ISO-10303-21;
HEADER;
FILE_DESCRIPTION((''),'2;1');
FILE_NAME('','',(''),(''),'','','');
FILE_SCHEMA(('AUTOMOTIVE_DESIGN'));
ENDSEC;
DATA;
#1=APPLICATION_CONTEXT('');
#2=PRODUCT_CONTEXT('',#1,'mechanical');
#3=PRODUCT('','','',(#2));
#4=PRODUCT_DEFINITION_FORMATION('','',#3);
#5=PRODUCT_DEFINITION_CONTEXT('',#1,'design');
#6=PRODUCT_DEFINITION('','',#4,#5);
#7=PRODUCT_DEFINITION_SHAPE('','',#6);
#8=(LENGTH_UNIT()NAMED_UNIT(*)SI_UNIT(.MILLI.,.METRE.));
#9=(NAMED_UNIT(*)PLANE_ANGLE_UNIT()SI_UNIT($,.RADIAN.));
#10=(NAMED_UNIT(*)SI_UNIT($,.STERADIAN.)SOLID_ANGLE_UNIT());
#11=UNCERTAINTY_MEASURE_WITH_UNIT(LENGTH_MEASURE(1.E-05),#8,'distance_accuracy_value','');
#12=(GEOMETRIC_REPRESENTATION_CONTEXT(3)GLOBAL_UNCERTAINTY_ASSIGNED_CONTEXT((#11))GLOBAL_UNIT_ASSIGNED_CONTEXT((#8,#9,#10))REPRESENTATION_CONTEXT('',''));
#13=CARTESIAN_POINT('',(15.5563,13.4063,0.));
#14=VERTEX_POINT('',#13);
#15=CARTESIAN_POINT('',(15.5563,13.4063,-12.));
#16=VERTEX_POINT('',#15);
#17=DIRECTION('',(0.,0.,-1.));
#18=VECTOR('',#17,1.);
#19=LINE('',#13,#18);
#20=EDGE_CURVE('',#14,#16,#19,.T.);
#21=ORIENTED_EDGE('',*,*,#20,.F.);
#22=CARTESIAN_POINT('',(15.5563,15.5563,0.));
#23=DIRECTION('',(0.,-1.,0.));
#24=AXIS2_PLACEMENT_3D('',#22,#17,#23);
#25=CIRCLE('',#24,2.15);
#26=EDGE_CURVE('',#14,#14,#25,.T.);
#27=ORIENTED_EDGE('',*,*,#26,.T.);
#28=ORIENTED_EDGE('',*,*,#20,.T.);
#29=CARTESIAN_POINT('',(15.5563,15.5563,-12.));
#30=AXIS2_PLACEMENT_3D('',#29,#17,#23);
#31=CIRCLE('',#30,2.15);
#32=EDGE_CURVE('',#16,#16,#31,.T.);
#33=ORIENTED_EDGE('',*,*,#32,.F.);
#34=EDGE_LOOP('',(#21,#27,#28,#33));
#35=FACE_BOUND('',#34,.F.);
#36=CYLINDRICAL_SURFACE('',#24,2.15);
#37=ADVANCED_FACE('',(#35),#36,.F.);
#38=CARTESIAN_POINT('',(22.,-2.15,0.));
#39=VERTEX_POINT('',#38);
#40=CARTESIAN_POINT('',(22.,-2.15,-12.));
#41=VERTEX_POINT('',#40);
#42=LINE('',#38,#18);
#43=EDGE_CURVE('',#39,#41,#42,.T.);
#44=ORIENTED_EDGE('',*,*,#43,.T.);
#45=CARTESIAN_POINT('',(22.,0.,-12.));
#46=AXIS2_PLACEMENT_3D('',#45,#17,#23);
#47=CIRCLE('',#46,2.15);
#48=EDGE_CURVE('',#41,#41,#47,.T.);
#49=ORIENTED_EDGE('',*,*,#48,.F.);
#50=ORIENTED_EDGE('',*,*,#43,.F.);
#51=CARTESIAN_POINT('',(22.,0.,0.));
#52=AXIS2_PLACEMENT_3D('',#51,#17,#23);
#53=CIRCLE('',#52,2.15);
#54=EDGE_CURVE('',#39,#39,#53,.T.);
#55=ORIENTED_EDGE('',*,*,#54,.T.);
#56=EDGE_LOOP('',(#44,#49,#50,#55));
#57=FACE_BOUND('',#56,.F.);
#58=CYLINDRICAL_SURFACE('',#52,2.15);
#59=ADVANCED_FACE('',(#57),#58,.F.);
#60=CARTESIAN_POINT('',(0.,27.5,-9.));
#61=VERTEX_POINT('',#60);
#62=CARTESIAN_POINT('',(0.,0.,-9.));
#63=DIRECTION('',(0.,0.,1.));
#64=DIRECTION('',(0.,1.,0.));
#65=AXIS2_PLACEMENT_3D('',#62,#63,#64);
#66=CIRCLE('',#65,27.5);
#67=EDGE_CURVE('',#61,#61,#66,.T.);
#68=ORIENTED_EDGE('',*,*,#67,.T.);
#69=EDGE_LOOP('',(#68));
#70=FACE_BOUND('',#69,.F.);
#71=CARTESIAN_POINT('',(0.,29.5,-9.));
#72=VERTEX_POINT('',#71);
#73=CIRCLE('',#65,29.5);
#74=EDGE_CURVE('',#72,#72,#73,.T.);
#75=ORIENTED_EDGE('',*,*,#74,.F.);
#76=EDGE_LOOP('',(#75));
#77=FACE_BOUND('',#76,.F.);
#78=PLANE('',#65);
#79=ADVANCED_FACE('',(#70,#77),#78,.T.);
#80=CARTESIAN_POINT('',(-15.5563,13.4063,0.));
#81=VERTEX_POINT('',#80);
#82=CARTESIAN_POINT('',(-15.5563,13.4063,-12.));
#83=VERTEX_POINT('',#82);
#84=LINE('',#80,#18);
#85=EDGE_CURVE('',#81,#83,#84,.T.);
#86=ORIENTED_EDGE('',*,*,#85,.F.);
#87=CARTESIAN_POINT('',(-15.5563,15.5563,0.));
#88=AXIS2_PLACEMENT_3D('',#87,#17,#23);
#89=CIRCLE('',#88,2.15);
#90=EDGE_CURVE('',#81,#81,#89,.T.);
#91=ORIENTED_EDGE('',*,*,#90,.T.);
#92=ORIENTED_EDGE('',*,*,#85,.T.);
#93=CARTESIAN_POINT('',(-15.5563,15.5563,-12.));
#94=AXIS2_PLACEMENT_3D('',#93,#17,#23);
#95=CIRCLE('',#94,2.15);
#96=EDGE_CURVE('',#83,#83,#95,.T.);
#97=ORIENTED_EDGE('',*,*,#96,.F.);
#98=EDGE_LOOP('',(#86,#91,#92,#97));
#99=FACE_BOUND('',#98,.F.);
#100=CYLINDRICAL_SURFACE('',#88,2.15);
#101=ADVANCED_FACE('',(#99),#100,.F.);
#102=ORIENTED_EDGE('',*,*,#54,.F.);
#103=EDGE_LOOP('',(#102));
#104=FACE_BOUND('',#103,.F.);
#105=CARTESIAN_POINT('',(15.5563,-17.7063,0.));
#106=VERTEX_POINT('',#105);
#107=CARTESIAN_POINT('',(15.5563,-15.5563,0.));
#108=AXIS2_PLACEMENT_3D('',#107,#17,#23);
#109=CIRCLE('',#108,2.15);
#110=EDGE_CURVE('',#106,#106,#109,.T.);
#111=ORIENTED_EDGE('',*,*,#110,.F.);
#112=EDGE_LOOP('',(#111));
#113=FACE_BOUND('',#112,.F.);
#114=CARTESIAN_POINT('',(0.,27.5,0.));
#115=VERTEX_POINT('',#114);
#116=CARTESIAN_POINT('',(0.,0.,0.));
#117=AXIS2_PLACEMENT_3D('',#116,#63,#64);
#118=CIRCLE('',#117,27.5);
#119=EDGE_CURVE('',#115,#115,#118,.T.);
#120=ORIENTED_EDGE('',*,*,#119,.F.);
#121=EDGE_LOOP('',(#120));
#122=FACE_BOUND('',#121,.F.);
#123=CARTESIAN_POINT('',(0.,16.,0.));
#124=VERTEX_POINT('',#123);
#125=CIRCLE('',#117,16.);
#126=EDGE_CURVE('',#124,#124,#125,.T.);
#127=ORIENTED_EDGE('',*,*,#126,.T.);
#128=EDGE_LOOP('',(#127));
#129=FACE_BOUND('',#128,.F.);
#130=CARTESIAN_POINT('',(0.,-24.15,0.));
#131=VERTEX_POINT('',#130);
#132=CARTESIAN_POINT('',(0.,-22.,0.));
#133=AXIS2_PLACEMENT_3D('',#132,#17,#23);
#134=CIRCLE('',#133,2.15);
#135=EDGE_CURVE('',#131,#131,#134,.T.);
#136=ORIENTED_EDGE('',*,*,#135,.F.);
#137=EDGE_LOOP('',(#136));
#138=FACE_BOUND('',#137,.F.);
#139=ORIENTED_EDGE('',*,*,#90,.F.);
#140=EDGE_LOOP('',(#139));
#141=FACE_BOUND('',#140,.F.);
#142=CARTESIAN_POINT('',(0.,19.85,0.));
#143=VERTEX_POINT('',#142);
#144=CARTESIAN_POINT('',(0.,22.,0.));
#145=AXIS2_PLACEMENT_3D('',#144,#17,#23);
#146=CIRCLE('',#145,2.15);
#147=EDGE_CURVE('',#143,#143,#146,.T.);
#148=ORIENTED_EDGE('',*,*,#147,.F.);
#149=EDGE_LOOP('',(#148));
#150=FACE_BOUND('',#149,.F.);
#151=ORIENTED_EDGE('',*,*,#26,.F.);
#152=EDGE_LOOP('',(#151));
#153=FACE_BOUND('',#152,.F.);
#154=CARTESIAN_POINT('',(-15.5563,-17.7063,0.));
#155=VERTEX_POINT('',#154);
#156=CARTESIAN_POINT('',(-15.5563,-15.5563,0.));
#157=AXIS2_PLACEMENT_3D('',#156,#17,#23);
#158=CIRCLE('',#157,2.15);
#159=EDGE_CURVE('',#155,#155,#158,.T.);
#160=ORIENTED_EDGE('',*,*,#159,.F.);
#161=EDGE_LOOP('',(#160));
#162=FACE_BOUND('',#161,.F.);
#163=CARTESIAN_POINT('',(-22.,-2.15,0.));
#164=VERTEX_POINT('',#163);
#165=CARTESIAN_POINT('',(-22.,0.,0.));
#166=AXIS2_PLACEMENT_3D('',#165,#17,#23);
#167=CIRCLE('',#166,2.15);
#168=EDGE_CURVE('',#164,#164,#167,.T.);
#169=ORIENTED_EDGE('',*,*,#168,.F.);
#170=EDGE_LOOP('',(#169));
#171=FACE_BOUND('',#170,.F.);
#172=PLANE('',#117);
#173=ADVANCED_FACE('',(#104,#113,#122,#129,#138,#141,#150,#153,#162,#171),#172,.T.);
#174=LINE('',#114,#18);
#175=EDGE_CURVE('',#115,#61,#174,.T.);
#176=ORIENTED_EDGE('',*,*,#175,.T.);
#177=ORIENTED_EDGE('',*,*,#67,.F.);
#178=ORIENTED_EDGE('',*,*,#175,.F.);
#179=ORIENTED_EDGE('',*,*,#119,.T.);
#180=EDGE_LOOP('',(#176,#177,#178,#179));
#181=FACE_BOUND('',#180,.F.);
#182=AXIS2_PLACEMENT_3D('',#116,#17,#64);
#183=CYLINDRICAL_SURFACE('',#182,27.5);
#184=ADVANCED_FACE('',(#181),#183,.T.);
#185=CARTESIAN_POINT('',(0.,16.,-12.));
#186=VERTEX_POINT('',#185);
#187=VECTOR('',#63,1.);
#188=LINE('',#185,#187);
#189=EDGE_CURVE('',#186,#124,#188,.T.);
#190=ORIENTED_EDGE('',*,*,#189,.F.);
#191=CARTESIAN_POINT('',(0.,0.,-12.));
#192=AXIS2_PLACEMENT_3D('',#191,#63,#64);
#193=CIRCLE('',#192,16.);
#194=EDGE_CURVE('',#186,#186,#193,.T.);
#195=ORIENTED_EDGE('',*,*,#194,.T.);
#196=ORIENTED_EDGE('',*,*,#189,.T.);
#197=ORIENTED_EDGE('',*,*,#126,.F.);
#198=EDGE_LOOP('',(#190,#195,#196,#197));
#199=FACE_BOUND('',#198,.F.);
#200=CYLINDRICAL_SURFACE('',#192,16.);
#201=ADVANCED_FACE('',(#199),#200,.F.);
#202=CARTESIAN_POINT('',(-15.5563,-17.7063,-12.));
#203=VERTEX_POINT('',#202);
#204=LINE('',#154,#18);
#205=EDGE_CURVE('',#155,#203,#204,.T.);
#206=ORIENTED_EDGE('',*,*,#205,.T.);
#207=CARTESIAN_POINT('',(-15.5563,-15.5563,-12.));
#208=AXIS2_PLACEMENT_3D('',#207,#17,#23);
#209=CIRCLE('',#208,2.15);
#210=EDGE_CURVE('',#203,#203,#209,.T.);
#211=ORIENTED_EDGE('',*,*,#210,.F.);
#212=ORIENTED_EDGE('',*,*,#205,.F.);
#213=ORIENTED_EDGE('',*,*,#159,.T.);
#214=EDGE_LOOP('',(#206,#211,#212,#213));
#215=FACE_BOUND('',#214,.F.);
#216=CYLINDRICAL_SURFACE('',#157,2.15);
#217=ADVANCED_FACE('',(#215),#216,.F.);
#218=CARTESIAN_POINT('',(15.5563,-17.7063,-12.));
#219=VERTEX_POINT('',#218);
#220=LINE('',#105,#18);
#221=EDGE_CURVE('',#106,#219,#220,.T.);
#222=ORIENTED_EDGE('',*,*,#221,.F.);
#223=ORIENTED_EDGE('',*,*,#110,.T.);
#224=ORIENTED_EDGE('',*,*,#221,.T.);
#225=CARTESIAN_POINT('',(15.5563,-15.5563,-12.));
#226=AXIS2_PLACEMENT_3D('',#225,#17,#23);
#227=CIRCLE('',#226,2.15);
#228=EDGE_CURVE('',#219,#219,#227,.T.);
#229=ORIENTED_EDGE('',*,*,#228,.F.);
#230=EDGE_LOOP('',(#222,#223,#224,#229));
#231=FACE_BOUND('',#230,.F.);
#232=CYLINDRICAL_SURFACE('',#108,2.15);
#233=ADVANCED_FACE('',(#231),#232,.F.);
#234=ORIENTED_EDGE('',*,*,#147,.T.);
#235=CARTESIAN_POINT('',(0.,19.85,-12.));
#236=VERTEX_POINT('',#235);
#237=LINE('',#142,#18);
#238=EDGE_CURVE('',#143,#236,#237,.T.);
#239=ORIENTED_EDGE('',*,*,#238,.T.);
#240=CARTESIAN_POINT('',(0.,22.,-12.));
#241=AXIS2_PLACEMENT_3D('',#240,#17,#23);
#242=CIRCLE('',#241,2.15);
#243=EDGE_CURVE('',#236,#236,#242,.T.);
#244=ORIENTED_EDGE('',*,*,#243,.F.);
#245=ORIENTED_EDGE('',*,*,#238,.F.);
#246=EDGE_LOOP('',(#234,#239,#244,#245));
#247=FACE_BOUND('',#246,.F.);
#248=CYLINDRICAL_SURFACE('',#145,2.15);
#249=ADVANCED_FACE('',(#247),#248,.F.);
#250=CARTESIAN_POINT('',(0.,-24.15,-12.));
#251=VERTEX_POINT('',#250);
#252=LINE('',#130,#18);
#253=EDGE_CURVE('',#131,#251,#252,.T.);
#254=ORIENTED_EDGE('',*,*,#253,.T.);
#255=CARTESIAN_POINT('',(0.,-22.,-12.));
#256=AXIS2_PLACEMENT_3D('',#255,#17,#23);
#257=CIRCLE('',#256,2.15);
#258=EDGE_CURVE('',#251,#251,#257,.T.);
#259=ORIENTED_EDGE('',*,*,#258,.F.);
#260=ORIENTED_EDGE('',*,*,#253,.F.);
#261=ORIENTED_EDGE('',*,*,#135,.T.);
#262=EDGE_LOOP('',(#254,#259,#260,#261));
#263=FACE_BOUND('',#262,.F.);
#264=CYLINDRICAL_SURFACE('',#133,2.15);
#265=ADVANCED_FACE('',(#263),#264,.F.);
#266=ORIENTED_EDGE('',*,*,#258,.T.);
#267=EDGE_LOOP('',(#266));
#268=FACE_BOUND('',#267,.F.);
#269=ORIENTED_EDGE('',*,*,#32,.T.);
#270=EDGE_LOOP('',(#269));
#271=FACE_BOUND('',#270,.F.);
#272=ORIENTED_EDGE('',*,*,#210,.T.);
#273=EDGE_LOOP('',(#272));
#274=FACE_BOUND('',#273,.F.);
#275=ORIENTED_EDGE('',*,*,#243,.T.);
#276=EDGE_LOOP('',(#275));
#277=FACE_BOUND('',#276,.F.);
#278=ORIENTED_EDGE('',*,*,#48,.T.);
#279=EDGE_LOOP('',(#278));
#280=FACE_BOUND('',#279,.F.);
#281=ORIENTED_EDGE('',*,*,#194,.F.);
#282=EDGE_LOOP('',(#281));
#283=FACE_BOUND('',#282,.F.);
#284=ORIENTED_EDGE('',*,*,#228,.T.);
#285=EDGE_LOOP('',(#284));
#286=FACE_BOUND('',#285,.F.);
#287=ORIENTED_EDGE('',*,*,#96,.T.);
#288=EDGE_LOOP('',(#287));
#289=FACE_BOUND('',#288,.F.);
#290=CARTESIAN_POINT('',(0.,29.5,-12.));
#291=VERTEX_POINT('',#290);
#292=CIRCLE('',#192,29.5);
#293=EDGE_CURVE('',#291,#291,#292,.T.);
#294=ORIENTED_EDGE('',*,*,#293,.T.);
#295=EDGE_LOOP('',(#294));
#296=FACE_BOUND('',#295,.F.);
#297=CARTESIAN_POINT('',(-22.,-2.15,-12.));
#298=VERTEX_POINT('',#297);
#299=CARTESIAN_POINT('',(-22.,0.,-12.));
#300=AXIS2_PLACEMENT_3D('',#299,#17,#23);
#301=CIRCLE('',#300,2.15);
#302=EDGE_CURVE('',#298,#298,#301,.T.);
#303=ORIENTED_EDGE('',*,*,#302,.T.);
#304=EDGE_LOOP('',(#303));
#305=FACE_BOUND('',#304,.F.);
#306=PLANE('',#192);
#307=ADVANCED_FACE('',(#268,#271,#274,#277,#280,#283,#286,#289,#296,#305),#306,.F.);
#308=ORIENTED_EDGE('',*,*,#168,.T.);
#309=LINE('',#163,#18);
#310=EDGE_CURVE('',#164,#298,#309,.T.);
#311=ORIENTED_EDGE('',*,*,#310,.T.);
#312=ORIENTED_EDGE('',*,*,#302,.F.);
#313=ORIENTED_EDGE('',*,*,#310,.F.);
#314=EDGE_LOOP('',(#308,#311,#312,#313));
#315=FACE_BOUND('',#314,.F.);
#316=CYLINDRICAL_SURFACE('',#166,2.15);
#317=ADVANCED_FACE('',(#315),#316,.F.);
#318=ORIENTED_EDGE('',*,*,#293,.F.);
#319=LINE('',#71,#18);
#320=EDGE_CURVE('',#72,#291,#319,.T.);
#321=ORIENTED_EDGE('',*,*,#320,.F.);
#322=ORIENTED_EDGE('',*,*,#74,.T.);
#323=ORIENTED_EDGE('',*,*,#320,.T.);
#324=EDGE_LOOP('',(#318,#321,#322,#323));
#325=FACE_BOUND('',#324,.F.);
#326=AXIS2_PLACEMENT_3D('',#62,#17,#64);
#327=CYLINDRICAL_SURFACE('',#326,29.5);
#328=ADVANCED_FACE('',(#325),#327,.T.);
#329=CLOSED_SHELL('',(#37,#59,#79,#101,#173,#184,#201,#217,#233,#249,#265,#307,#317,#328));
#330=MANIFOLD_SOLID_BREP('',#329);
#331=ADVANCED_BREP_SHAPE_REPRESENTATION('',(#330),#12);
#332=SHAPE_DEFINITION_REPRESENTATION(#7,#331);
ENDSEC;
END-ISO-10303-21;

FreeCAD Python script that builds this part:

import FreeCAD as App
import Part
import Sketcher
from FreeCAD import Vector
Q = App.Units.Quantity


def add_polygon(sketch, points):
    """Adds a closed chain of lines whose ends are joined by coincident constraints."""
    first, n = sketch.GeometryCount, len(points)
    for a, b in zip(points, points[1:] + points[:1]):
        sketch.addGeometry(Part.LineSegment(App.Vector(*a, 0), App.Vector(*b, 0)), False)
    for i in range(n):
        sketch.addConstraint(Sketcher.Constraint("Coincident", first + i, 2, first + (i + 1) % n, 1))

doc = App.newDocument("Part")
body = doc.addObject("PartDesign::Body", "Body")

# Sketch on YZ plane
sketch1 = body.newObject("Sketcher::SketchObject", "Sketch")
sketch1.AttachmentSupport = (doc.getObject("YZ_Plane"), [""])
sketch1.MapMode = "FlatFace"
add_polygon(sketch1, [(27.5, 0), (16, 0), (16, -12), (29.5, -12), (29.5, -9), (27.5, -9)])  # lines 0-5
sketch1.addConstraint(Sketcher.Constraint("Horizontal", 0))
sketch1.addConstraint(Sketcher.Constraint("Vertical", 1))
sketch1.addConstraint(Sketcher.Constraint("Horizontal", 2))
sketch1.addConstraint(Sketcher.Constraint("Vertical", 3))
sketch1.addConstraint(Sketcher.Constraint("Horizontal", 4))
sketch1.addConstraint(Sketcher.Constraint("Vertical", 5))
sketch1.addConstraint(Sketcher.Constraint("PointOnObject", 0, 2, -1))
sketch1.addConstraint(Sketcher.Constraint("DistanceX", 4, 2, 4, 1, Q("2 mm")))
sketch1.addConstraint(Sketcher.Constraint("DistanceY", 3, 1, 3, 2, Q("3 mm")))
sketch1.addConstraint(Sketcher.Constraint("DistanceY", 5, 1, 5, 2, Q("9 mm")))
sketch1.addConstraint(Sketcher.Constraint("DistanceX", -1, 1, 0, 2, Q("16 mm")))
sketch1.addConstraint(Sketcher.Constraint("DistanceX", -1, 1, 4, 2, Q("27.5 mm")))
revolution = body.newObject("PartDesign::Revolution", "Revolution")
revolution.Profile = sketch1
revolution.ReferenceAxis = (sketch1, ["V_Axis"])
revolution.Angle = 360

# Sketch on XY plane
sketch2 = body.newObject("Sketcher::SketchObject", "Sketch001")
sketch2.AttachmentSupport = (doc.getObject("XY_Plane"), [""])
sketch2.MapMode = "FlatFace"
sketch2.addGeometry(Part.Circle(Vector(0, 22, 0), Vector(0, 0, 1), 2.15), False)
sketch2.addGeometry(Part.Circle(Vector(-15.5563, 15.5563, 0), Vector(0, 0, 1), 2.15), False)
sketch2.addGeometry(Part.Circle(Vector(-22, 0, 0), Vector(0, 0, 1), 2.15), False)
sketch2.addGeometry(Part.Circle(Vector(-15.5563, -15.5563, 0), Vector(0, 0, 1), 2.15), False)
sketch2.addGeometry(Part.Circle(Vector(0, -22, 0), Vector(0, 0, 1), 2.15), False)
sketch2.addGeometry(Part.Circle(Vector(15.5563, -15.5563, 0), Vector(0, 0, 1), 2.15), False)
sketch2.addGeometry(Part.Circle(Vector(22, 0, 0), Vector(0, 0, 1), 2.15), False)
sketch2.addGeometry(Part.Circle(Vector(15.5563, 15.5563, 0), Vector(0, 0, 1), 2.15), False)
sketch2.addConstraint(Sketcher.Constraint("Equal", 0, 1))
sketch2.addConstraint(Sketcher.Constraint("Equal", 1, 2))
sketch2.addConstraint(Sketcher.Constraint("Equal", 2, 3))
sketch2.addConstraint(Sketcher.Constraint("Equal", 3, 4))
sketch2.addConstraint(Sketcher.Constraint("Equal", 4, 5))
sketch2.addConstraint(Sketcher.Constraint("Equal", 5, 6))
sketch2.addConstraint(Sketcher.Constraint("Equal", 6, 7))
sketch2.addConstraint(Sketcher.Constraint("Symmetric", 0, 3, 4, 3, -1, 1))
sketch2.addConstraint(Sketcher.Constraint("Symmetric", 1, 3, 5, 3, -1, 1))
sketch2.addConstraint(Sketcher.Constraint("Symmetric", 2, 3, 6, 3, -1, 1))
sketch2.addConstraint(Sketcher.Constraint("Symmetric", 3, 3, 7, 3, -1, 1))
sketch2.addConstraint(Sketcher.Constraint("Symmetric", 3, 3, 5, 3, -2))
sketch2.addConstraint(Sketcher.Constraint("PointOnObject", 0, 3, -2))
sketch2.addConstraint(Sketcher.Constraint("PointOnObject", 2, 3, -1))
sketch2.addConstraint(Sketcher.Constraint("Diameter", 0, Q("4.3 mm")))
sketch2.addConstraint(Sketcher.Constraint("DistanceY", -1, 1, 0, 3, Q("22 mm")))
sketch2.addConstraint(Sketcher.Constraint("DistanceX", 2, 3, -1, 1, Q("22 mm")))
sketch2.addConstraint(Sketcher.Constraint("DistanceX", 1, 3, -1, 1, Q("15.5563 mm")))
sketch2.addConstraint(Sketcher.Constraint("DistanceY", -1, 1, 1, 3, Q("15.5563 mm")))
doc.recompute()
hole = body.newObject("PartDesign::Hole", "Hole")
hole.Profile = sketch2
hole.ThreadType = "None"
hole.Diameter = 4.3
hole.DepthType = "ThroughAll"

doc.recompute()
